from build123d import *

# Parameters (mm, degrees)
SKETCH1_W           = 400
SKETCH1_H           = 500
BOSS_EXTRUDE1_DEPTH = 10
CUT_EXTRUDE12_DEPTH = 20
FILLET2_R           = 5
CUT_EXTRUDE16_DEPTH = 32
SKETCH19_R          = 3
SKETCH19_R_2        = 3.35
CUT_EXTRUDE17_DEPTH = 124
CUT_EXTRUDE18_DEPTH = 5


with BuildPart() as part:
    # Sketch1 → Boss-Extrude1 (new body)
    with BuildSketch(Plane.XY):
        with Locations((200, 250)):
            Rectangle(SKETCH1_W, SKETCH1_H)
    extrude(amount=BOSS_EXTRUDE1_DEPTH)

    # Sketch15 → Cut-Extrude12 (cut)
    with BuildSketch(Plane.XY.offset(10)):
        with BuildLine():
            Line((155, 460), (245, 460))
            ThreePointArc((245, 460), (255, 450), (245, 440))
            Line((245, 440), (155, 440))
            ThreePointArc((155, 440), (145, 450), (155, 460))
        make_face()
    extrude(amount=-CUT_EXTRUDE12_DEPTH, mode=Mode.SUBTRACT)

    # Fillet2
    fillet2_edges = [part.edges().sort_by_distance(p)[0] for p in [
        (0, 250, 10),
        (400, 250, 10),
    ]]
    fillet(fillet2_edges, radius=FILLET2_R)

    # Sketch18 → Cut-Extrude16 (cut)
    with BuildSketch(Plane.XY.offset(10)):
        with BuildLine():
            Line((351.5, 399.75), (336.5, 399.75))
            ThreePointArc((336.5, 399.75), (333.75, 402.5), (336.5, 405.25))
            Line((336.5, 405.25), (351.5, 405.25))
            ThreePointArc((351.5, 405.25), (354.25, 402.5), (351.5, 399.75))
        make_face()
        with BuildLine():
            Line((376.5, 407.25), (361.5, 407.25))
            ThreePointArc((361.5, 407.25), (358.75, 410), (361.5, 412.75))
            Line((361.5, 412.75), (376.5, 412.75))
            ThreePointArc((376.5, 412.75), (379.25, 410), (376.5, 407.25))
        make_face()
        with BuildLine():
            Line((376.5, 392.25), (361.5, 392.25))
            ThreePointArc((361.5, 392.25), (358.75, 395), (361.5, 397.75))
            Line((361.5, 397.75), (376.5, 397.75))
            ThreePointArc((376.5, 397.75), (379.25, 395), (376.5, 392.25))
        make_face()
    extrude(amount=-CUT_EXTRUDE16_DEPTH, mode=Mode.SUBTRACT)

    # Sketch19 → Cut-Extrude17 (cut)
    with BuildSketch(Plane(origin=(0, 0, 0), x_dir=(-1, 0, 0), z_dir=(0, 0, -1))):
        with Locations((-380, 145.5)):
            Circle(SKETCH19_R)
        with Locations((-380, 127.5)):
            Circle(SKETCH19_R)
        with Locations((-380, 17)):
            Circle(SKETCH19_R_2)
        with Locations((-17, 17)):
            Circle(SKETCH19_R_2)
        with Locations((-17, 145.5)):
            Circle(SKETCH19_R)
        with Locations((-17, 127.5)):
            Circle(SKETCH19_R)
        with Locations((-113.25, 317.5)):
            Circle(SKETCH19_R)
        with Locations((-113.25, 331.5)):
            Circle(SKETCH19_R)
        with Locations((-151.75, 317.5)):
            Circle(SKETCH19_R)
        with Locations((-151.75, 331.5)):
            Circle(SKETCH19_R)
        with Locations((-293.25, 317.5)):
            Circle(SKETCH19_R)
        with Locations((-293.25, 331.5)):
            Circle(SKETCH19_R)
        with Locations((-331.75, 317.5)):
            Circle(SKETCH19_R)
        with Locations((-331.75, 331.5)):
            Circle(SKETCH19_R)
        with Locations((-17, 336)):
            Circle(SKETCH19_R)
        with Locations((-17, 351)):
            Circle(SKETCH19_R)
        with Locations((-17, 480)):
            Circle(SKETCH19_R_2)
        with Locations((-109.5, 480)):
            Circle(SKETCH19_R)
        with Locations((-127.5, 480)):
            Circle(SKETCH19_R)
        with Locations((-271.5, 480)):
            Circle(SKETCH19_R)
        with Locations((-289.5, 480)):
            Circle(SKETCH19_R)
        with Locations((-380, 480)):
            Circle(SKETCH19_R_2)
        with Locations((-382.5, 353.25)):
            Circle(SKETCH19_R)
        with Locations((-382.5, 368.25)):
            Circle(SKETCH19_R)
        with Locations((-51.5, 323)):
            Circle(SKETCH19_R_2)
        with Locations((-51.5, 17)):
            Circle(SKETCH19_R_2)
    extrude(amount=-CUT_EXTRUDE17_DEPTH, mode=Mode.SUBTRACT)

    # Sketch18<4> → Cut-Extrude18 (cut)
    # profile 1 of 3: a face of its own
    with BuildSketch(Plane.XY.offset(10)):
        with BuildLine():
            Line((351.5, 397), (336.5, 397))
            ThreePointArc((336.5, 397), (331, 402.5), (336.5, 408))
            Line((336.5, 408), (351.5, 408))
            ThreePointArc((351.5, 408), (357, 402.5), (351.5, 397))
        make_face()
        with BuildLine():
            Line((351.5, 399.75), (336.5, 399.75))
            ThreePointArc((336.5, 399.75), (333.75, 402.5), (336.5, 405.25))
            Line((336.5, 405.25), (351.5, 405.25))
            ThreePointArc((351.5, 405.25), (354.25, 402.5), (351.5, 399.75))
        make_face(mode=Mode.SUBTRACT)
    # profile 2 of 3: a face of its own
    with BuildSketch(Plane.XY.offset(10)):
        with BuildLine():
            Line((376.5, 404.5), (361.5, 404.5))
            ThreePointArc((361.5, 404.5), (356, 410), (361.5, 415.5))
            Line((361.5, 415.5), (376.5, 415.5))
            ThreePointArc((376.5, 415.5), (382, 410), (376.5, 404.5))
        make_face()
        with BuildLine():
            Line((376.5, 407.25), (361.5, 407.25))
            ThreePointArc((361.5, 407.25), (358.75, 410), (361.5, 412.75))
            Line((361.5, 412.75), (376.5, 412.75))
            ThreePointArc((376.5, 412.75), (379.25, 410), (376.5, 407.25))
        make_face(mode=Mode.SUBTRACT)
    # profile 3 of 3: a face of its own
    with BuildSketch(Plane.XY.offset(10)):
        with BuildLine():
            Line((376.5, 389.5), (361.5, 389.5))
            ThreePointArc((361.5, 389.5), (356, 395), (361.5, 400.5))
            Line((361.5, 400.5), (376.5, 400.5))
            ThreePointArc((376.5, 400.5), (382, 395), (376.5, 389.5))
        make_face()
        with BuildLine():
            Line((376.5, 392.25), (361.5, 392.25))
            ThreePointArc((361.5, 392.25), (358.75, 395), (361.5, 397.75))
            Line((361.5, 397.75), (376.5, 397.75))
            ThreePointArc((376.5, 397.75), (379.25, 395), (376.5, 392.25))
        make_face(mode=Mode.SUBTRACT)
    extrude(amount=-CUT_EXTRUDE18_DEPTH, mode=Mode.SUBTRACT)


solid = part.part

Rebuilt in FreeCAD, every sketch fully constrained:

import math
import FreeCAD as App
import Part
import Sketcher

V = App.Vector


def edges_at(feature, points):
    """Names of the edges that pass closest to the given points."""
    edges = feature.Shape.Edges
    near = lambda p: min(range(len(edges)), key=lambda i: edges[i].distToShape(Part.Vertex(*p))[0])
    return sorted({f"Edge{near(p) + 1}" for p in points})


def add_polygon(sketch, points):
    """Adds a closed chain of lines whose ends are joined by coincident constraints."""
    first, n = sketch.GeometryCount, len(points)
    for a, b in zip(points, points[1:] + points[:1]):
        sketch.addGeometry(Part.LineSegment(App.Vector(*a, 0), App.Vector(*b, 0)), False)
    for i in range(n):
        sketch.addConstraint(Sketcher.Constraint("Coincident", first + i, 2, first + (i + 1) % n, 1))

doc = App.newDocument("Part")
params = doc.addObject("Spreadsheet::Sheet", "Params")
for row, (alias, value) in enumerate([
    ("sketch1_width", "400 mm"),
    ("sketch1_height", "500 mm"),
    ("pad1_length", "10 mm"),
    ("sketch2_radius", "10 mm"),
    ("sketch2_width", "90 mm"),
    ("pocket1_length", "20 mm"),
    ("fillet_radius", "5 mm"),
    ("sketch3_width", "15 mm"),
    ("sketch3_radius", "2.75 mm"),
    ("pocket2_length", "32 mm"),
    ("sketch4_diameter", "6 mm"),
    ("sketch4_diameter2", "6.7 mm"),
    ("pocket3_length", "124 mm"),
    ("sketch5_radius", "5.5 mm"),
    ("sketch5_width", "15 mm"),
    ("sketch5_radius2", "2.75 mm"),
    ("pocket4_length", "5 mm"),
], start=1):
    params.set(f"A{row}", alias)
    params.set(f"B{row}", "=" + value)
    params.setAlias(f"B{row}", alias)

body = doc.addObject("PartDesign::Body", "Body")

sketch1 = doc.addObject("Sketcher::SketchObject", "Sketch")
body.addObject(sketch1)
sketch1.AttachmentSupport = (doc.XY_Plane, [""])
sketch1.MapMode = "FlatFace"
add_polygon(sketch1, [(0, 500), (0, 0), (400, 0), (400, 500)])
sketch1.addConstraint([
    Sketcher.Constraint("Vertical", 0),
    Sketcher.Constraint("Horizontal", 1),
    Sketcher.Constraint("Vertical", 2),
    Sketcher.Constraint("Horizontal", 3),
    Sketcher.Constraint("Coincident", 0, 2, -1, 1),
    Sketcher.Constraint("DistanceX", 1, 1, 1, 2, 400.0),
    Sketcher.Constraint("DistanceY", 0, 2, 0, 1, 500.0),
])
sketch1.setExpression("Constraints[9]", "Params.sketch1_width")
sketch1.setExpression("Constraints[10]", "Params.sketch1_height")
pad1 = doc.addObject("PartDesign::Pad", "Pad")
body.addObject(pad1)
pad1.Profile = sketch1
pad1.setExpression("Length", "Params.pad1_length")

sketch2 = doc.addObject("Sketcher::SketchObject", "Sketch001")
body.addObject(sketch2)
sketch2.AttachmentSupport = (doc.XY_Plane, [""])
sketch2.MapMode = "FlatFace"
sketch2.AttachmentOffset = App.Placement(V(0, 0, 10), App.Rotation())
sketch2.addGeometry([
    Part.LineSegment(V(245, 460, 0), V(155, 460, 0)),
    Part.ArcOfCircle(Part.Circle(V(155, 450, 0), V(0, 0, 1), 10), math.radians(90), math.radians(270)),
    Part.LineSegment(V(155, 440, 0), V(245, 440, 0)),
    Part.ArcOfCircle(Part.Circle(V(245, 450, 0), V(0, 0, 1), 10), math.radians(-90), math.radians(90)),
], False)
sketch2.addConstraint([
    Sketcher.Constraint("Tangent", 0, 2, 1, 1),
    Sketcher.Constraint("Tangent", 1, 2, 2, 1),
    Sketcher.Constraint("Tangent", 2, 2, 3, 1),
    Sketcher.Constraint("Tangent", 3, 2, 0, 1),
    Sketcher.Constraint("Horizontal", 0),
    Sketcher.Constraint("Horizontal", 2),
    Sketcher.Constraint("Radius", 1, 10.0),
    Sketcher.Constraint("DistanceX", 0, 2, 0, 1, 90.0),
    Sketcher.Constraint("DistanceX", -1, 1, 1, 3, 155.0),
    Sketcher.Constraint("DistanceY", -1, 1, 1, 3, 450.0),
])
sketch2.setExpression("Constraints[6]", "Params.sketch2_radius")
sketch2.setExpression("Constraints[7]", "Params.sketch2_width")
pocket1 = doc.addObject("PartDesign::Pocket", "Pocket")
body.addObject(pocket1)
pocket1.Profile = sketch2
pocket1.setExpression("Length", "Params.pocket1_length")
doc.recompute()

fillet = doc.addObject("PartDesign::Fillet", "Fillet")
body.addObject(fillet)
fillet.Base = (pocket1, edges_at(pocket1, [(0, 250, 10), (400, 250, 10)]))
fillet.setExpression("Radius", "Params.fillet_radius")

sketch3 = doc.addObject("Sketcher::SketchObject", "Sketch002")
body.addObject(sketch3)
sketch3.AttachmentSupport = (doc.XY_Plane, [""])
sketch3.MapMode = "FlatFace"
sketch3.AttachmentOffset = App.Placement(V(0, 0, 10), App.Rotation())
sketch3.addGeometry([
    Part.LineSegment(V(336.5, 399.8, 0), V(351.5, 399.8, 0)),
    Part.ArcOfCircle(Part.Circle(V(351.5, 402.5, 0), V(0, 0, 1), 2.8), math.radians(-90), math.radians(90)),
    Part.LineSegment(V(351.5, 405.2, 0), V(336.5, 405.2, 0)),
    Part.ArcOfCircle(Part.Circle(V(336.5, 402.5, 0), V(0, 0, 1), 2.8), math.radians(90), math.radians(270)),
    Part.LineSegment(V(361.5, 407.2, 0), V(376.5, 407.2, 0)),
    Part.ArcOfCircle(Part.Circle(V(376.5, 410, 0), V(0, 0, 1), 2.8), math.radians(-90), math.radians(90)),
    Part.LineSegment(V(376.5, 412.8, 0), V(361.5, 412.8, 0)),
    Part.ArcOfCircle(Part.Circle(V(361.5, 410, 0), V(0, 0, 1), 2.8), math.radians(90), math.radians(270)),
    Part.LineSegment(V(361.5, 392.2, 0), V(376.5, 392.2, 0)),
    Part.ArcOfCircle(Part.Circle(V(376.5, 395, 0), V(0, 0, 1), 2.8), math.radians(-90), math.radians(90)),
    Part.LineSegment(V(376.5, 397.8, 0), V(361.5, 397.8, 0)),
    Part.ArcOfCircle(Part.Circle(V(361.5, 395, 0), V(0, 0, 1), 2.8), math.radians(90), math.radians(270)),
], False)
sketch3.addConstraint([
    Sketcher.Constraint("Tangent", 0, 2, 1, 1),
    Sketcher.Constraint("Tangent", 1, 2, 2, 1),
    Sketcher.Constraint("Tangent", 2, 2, 3, 1),
    Sketcher.Constraint("Tangent", 3, 2, 0, 1),
    Sketcher.Constraint("Tangent", 4, 2, 5, 1),
    Sketcher.Constraint("Tangent", 5, 2, 6, 1),
    Sketcher.Constraint("Tangent", 6, 2, 7, 1),
    Sketcher.Constraint("Tangent", 7, 2, 4, 1),
    Sketcher.Constraint("Tangent", 8, 2, 9, 1),
    Sketcher.Constraint("Tangent", 9, 2, 10, 1),
    Sketcher.Constraint("Tangent", 10, 2, 11, 1),
    Sketcher.Constraint("Tangent", 11, 2, 8, 1),
    Sketcher.Constraint("Horizontal", 0),
    Sketcher.Constraint("Horizontal", 2),
    Sketcher.Constraint("Horizontal", 4),
    Sketcher.Constraint("Horizontal", 6),
    Sketcher.Constraint("Horizontal", 8),
    Sketcher.Constraint("Horizontal", 10),
    Sketcher.Constraint("Equal", 3, 5),
    Sketcher.Constraint("Equal", 7, 9),
    Sketcher.Constraint("Vertical", 5, 3, 9, 3),
    Sketcher.Constraint("Vertical", 7, 3, 11, 3),
    Sketcher.Constraint("Equal", 2, 4),
    Sketcher.Constraint("DistanceX", 0, 1, 0, 2, 15.0),
    Sketcher.Constraint("Radius", 1, 2.75),
    Sketcher.Constraint("DistanceY", -1, 1, 5, 3, 410.0),
    Sketcher.Constraint("DistanceY", -1, 1, 9, 3, 395.0),
    Sketcher.Constraint("DistanceX", 1, 3, 5, 3, 25.0),
    Sketcher.Constraint("DistanceY", 1, 2, 4, 2, 2.0),
    Sketcher.Constraint("DistanceX", -1, 1, 1, 3, 351.5),
])
sketch3.setExpression("Constraints[23]", "Params.sketch3_width")
sketch3.setExpression("Constraints[24]", "Params.sketch3_radius")
pocket2 = doc.addObject("PartDesign::Pocket", "Pocket001")
body.addObject(pocket2)
pocket2.Profile = sketch3
pocket2.setExpression("Length", "Params.pocket2_length")

sketch4 = doc.addObject("Sketcher::SketchObject", "Sketch003")
body.addObject(sketch4)
sketch4.AttachmentSupport = (doc.XY_Plane, [""])
sketch4.MapMode = "FlatFace"
sketch4.addGeometry([
    Part.Circle(V(380, 145.5, 0), V(0, 0, 1), 3),
    Part.Circle(V(380, 127.5, 0), V(0, 0, 1), 3),
    Part.Circle(V(380, 17, 0), V(0, 0, 1), 3.4),
    Part.Circle(V(17, 17, 0), V(0, 0, 1), 3.4),
    Part.Circle(V(17, 145.5, 0), V(0, 0, 1), 3),
    Part.Circle(V(17, 127.5, 0), V(0, 0, 1), 3),
    Part.Circle(V(113.2, 317.5, 0), V(0, 0, 1), 3),
    Part.Circle(V(113.2, 331.5, 0), V(0, 0, 1), 3),
    Part.Circle(V(151.8, 317.5, 0), V(0, 0, 1), 3),
    Part.Circle(V(151.8, 331.5, 0), V(0, 0, 1), 3),
    Part.Circle(V(293.2, 317.5, 0), V(0, 0, 1), 3),
    Part.Circle(V(293.2, 331.5, 0), V(0, 0, 1), 3),
    Part.Circle(V(331.8, 317.5, 0), V(0, 0, 1), 3),
    Part.Circle(V(331.8, 331.5, 0), V(0, 0, 1), 3),
    Part.Circle(V(17, 336, 0), V(0, 0, 1), 3),
    Part.Circle(V(17, 351, 0), V(0, 0, 1), 3),
    Part.Circle(V(17, 480, 0), V(0, 0, 1), 3.4),
    Part.Circle(V(109.5, 480, 0), V(0, 0, 1), 3),
    Part.Circle(V(127.5, 480, 0), V(0, 0, 1), 3),
    Part.Circle(V(271.5, 480, 0), V(0, 0, 1), 3),
    Part.Circle(V(289.5, 480, 0), V(0, 0, 1), 3),
    Part.Circle(V(380, 480, 0), V(0, 0, 1), 3.4),
    Part.Circle(V(382.5, 353.2, 0), V(0, 0, 1), 3),
    Part.Circle(V(382.5, 368.2, 0), V(0, 0, 1), 3),
    Part.Circle(V(51.5, 323, 0), V(0, 0, 1), 3.4),
    Part.Circle(V(51.5, 17, 0), V(0, 0, 1), 3.4),
], False)
sketch4.addConstraint([
    Sketcher.Constraint("Equal", 0, 1),
    Sketcher.Constraint("Equal", 2, 3),
    Sketcher.Constraint("Equal", 1, 4),
    Sketcher.Constraint("Equal", 4, 5),
    Sketcher.Constraint("Equal", 5, 6),
    Sketcher.Constraint("Equal", 6, 7),
    Sketcher.Constraint("Equal", 7, 8),
    Sketcher.Constraint("Equal", 8, 9),
    Sketcher.Constraint("Equal", 9, 10),
    Sketcher.Constraint("Equal", 10, 11),
    Sketcher.Constraint("Equal", 11, 12),
    Sketcher.Constraint("Equal", 12, 13),
    Sketcher.Constraint("Equal", 13, 14),
    Sketcher.Constraint("Equal", 14, 15),
    Sketcher.Constraint("Equal", 3, 16),
    Sketcher.Constraint("Equal", 15, 17),
    Sketcher.Constraint("Equal", 17, 18),
    Sketcher.Constraint("Equal", 18, 19),
    Sketcher.Constraint("Equal", 19, 20),
    Sketcher.Constraint("Equal", 16, 21),
    Sketcher.Constraint("Equal", 20, 22),
    Sketcher.Constraint("Equal", 22, 23),
    Sketcher.Constraint("Equal", 21, 24),
    Sketcher.Constraint("Equal", 24, 25),
    Sketcher.Constraint("Horizontal", 2, 3, 3, 3),
    Sketcher.Constraint("Horizontal", 0, 3, 4, 3),
    Sketcher.Constraint("Horizontal", 1, 3, 5, 3),
    Sketcher.Constraint("Horizontal", 6, 3, 8, 3),
    Sketcher.Constraint("Horizontal", 7, 3, 9, 3),
    Sketcher.Constraint("Horizontal", 8, 3, 10, 3),
    Sketcher.Constraint("Horizontal", 9, 3, 11, 3),
    Sketcher.Constraint("Horizontal", 10, 3, 12, 3),
    Sketcher.Constraint("Horizontal", 11, 3, 13, 3),
    Sketcher.Constraint("Horizontal", 16, 3, 17, 3),
    Sketcher.Constraint("Horizontal", 17, 3, 18, 3),
    Sketcher.Constraint("Horizontal", 18, 3, 19, 3),
    Sketcher.Constraint("Horizontal", 19, 3, 20, 3),
    Sketcher.Constraint("Horizontal", 20, 3, 21, 3),
    Sketcher.Constraint("Horizontal", 3, 3, 25, 3),
    Sketcher.Constraint("Vertical", 0, 3, 1, 3),
    Sketcher.Constraint("Vertical", 1, 3, 2, 3),
    Sketcher.Constraint("Vertical", 3, 3, 4, 3),
    Sketcher.Constraint("Vertical", 4, 3, 5, 3),
    Sketcher.Constraint("Vertical", 6, 3, 7, 3),
    Sketcher.Constraint("Vertical", 8, 3, 9, 3),
    Sketcher.Constraint("Vertical", 10, 3, 11, 3),
    Sketcher.Constraint("Vertical", 12, 3, 13, 3),
    Sketcher.Constraint("Vertical", 5, 3, 14, 3),
    Sketcher.Constraint("Vertical", 14, 3, 15, 3),
    Sketcher.Constraint("Vertical", 15, 3, 16, 3),
    Sketcher.Constraint("Vertical", 2, 3, 21, 3),
    Sketcher.Constraint("Vertical", 22, 3, 23, 3),
    Sketcher.Constraint("Vertical", 24, 3, 25, 3),
    Sketcher.Constraint("Diameter", 0, 6.0),
    Sketcher.Constraint("Diameter", 2, 6.7),
    Sketcher.Constraint("DistanceX", -1, 1, 0, 3, 380.0),
    Sketcher.Constraint("DistanceY", -1, 1, 2, 3, 17.0),
    Sketcher.Constraint("DistanceX", -1, 1, 3, 3, 17.0),
    Sketcher.Constraint("DistanceY", -1, 1, 14, 3, 336.0),
    Sketcher.Constraint("DistanceY", -1, 1, 15, 3, 351.0),
    Sketcher.Constraint("DistanceY", -1, 1, 16, 3, 480.0),
    Sketcher.Constraint("DistanceY", -1, 1, 24, 3, 323.0),
    Sketcher.Constraint("DistanceY", 1, 3, 0, 3, 18.0),
    Sketcher.Constraint("DistanceY", 4, 3, 6, 3, 172.0),
    Sketcher.Constraint("DistanceY", 6, 3, 7, 3, 14.0),
    Sketcher.Constraint("DistanceX", 6, 3, 10, 3, 180.0),
    Sketcher.Constraint("DistanceX", 8, 3, 12, 3, 180.0),
    Sketcher.Constraint("DistanceX", 17, 3, 18, 3, 18.0),
    Sketcher.Constraint("DistanceX", 18, 3, 19, 3, 144.0),
    Sketcher.Constraint("DistanceX", 19, 3, 20, 3, 18.0),
    Sketcher.Constraint("DistanceY", 22, 3, 23, 3, 15.0),
    Sketcher.Constraint("DistanceY", -1, 1, 0, 3, 145.5),
    Sketcher.Constraint("DistanceX", -1, 1, 17, 3, 109.5),
    Sketcher.Constraint("DistanceX", -1, 1, 22, 3, 382.5),
    Sketcher.Constraint("DistanceX", -1, 1, 24, 3, 51.5),
    Sketcher.Constraint("DistanceX", 6, 3, 8, 3, 38.5),
    Sketcher.Constraint("DistanceX", -1, 1, 6, 3, 113.25),
    Sketcher.Constraint("DistanceY", -1, 1, 22, 3, 353.25),
])
sketch4.setExpression("Constraints[53]", "Params.sketch4_diameter")
sketch4.setExpression("Constraints[54]", "Params.sketch4_diameter2")
pocket3 = doc.addObject("PartDesign::Pocket", "Pocket002")
body.addObject(pocket3)
pocket3.Profile = sketch4
pocket3.setExpression("Length", "Params.pocket3_length")
pocket3.Reversed = True

sketch5 = doc.addObject("Sketcher::SketchObject", "Sketch004")
body.addObject(sketch5)
sketch5.AttachmentSupport = (doc.XY_Plane, [""])
sketch5.MapMode = "FlatFace"
sketch5.AttachmentOffset = App.Placement(V(0, 0, 10), App.Rotation())
sketch5.addGeometry([
    Part.LineSegment(V(336.5, 397, 0), V(351.5, 397, 0)),
    Part.ArcOfCircle(Part.Circle(V(351.5, 402.5, 0), V(0, 0, 1), 5.5), math.radians(-90), math.radians(90)),
    Part.LineSegment(V(351.5, 408, 0), V(336.5, 408, 0)),
    Part.ArcOfCircle(Part.Circle(V(336.5, 402.5, 0), V(0, 0, 1), 5.5), math.radians(90), math.radians(270)),
    Part.LineSegment(V(351.5, 399.8, 0), V(336.5, 399.8, 0)),
    Part.ArcOfCircle(Part.Circle(V(336.5, 402.5, 0), V(0, 0, 1), 2.8), math.radians(90), math.radians(270)),
    Part.LineSegment(V(336.5, 405.2, 0), V(351.5, 405.2, 0)),
    Part.ArcOfCircle(Part.Circle(V(351.5, 402.5, 0), V(0, 0, 1), 2.8), math.radians(-90), math.radians(90)),
    Part.LineSegment(V(361.5, 404.5, 0), V(376.5, 404.5, 0)),
    Part.ArcOfCircle(Part.Circle(V(376.5, 410, 0), V(0, 0, 1), 5.5), math.radians(-90), math.radians(90)),
    Part.LineSegment(V(376.5, 415.5, 0), V(361.5, 415.5, 0)),
    Part.ArcOfCircle(Part.Circle(V(361.5, 410, 0), V(0, 0, 1), 5.5), math.radians(90), math.radians(270)),
    Part.LineSegment(V(376.5, 407.2, 0), V(361.5, 407.2, 0)),
    Part.ArcOfCircle(Part.Circle(V(361.5, 410, 0), V(0, 0, 1), 2.8), math.radians(90), math.radians(270)),
    Part.LineSegment(V(361.5, 412.8, 0), V(376.5, 412.8, 0)),
    Part.ArcOfCircle(Part.Circle(V(376.5, 410, 0), V(0, 0, 1), 2.8), math.radians(-90), math.radians(90)),
    Part.LineSegment(V(361.5, 389.5, 0), V(376.5, 389.5, 0)),
    Part.ArcOfCircle(Part.Circle(V(376.5, 395, 0), V(0, 0, 1), 5.5), math.radians(-90), math.radians(90)),
    Part.LineSegment(V(376.5, 400.5, 0), V(361.5, 400.5, 0)),
    Part.ArcOfCircle(Part.Circle(V(361.5, 395, 0), V(0, 0, 1), 5.5), math.radians(90), math.radians(270)),
    Part.LineSegment(V(376.5, 392.2, 0), V(361.5, 392.2, 0)),
    Part.ArcOfCircle(Part.Circle(V(361.5, 395, 0), V(0, 0, 1), 2.8), math.radians(90), math.radians(270)),
    Part.LineSegment(V(361.5, 397.8, 0), V(376.5, 397.8, 0)),
    Part.ArcOfCircle(Part.Circle(V(376.5, 395, 0), V(0, 0, 1), 2.8), math.radians(-90), math.radians(90)),
], False)
sketch5.addConstraint([
    Sketcher.Constraint("Tangent", 0, 2, 1, 1),
    Sketcher.Constraint("Tangent", 1, 2, 2, 1),
    Sketcher.Constraint("Tangent", 2, 2, 3, 1),
    Sketcher.Constraint("Tangent", 3, 2, 0, 1),
    Sketcher.Constraint("Tangent", 4, 2, 5, 2),
    Sketcher.Constraint("Tangent", 5, 1, 6, 1),
    Sketcher.Constraint("Tangent", 6, 2, 7, 2),
    Sketcher.Constraint("Tangent", 7, 1, 4, 1),
    Sketcher.Constraint("Tangent", 8, 2, 9, 1),
    Sketcher.Constraint("Tangent", 9, 2, 10, 1),
    Sketcher.Constraint("Tangent", 10, 2, 11, 1),
    Sketcher.Constraint("Tangent", 11, 2, 8, 1),
    Sketcher.Constraint("Tangent", 12, 2, 13, 2),
    Sketcher.Constraint("Tangent", 13, 1, 14, 1),
    Sketcher.Constraint("Tangent", 14, 2, 15, 2),
    Sketcher.Constraint("Tangent", 15, 1, 12, 1),
    Sketcher.Constraint("Tangent", 16, 2, 17, 1),
    Sketcher.Constraint("Tangent", 17, 2, 18, 1),
    Sketcher.Constraint("Tangent", 18, 2, 19, 1),
    Sketcher.Constraint("Tangent", 19, 2, 16, 1),
    Sketcher.Constraint("Tangent", 20, 2, 21, 2),
    Sketcher.Constraint("Tangent", 21, 1, 22, 1),
    Sketcher.Constraint("Tangent", 22, 2, 23, 2),
    Sketcher.Constraint("Tangent", 23, 1, 20, 1),
    Sketcher.Constraint("Horizontal", 0),
    Sketcher.Constraint("Horizontal", 2),
    Sketcher.Constraint("Horizontal", 4),
    Sketcher.Constraint("Horizontal", 6),
    Sketcher.Constraint("Horizontal", 8),
    Sketcher.Constraint("Horizontal", 10),
    Sketcher.Constraint("Horizontal", 12),
    Sketcher.Constraint("Horizontal", 14),
    Sketcher.Constraint("Horizontal", 16),
    Sketcher.Constraint("Horizontal", 18),
    Sketcher.Constraint("Horizontal", 20),
    Sketcher.Constraint("Horizontal", 22),
    Sketcher.Constraint("Coincident", 5, 3, 3, 3),
    Sketcher.Constraint("Coincident", 13, 3, 11, 3),
    Sketcher.Constraint("Coincident", 21, 3, 19, 3),
    Sketcher.Constraint("Equal", 3, 9),
    Sketcher.Constraint("Equal", 7, 13),
    Sketcher.Constraint("Equal", 11, 17),
    Sketcher.Constraint("Equal", 15, 21),
    Sketcher.Constraint("Vertical", 15, 3, 17, 3),
    Sketcher.Constraint("Vertical", 13, 3, 19, 3),
    Sketcher.Constraint("Vertical", 15, 3, 23, 3),
    Sketcher.Constraint("Vertical", 7, 3, 0, 2),
    Sketcher.Constraint("Vertical", 23, 3, 8, 2),
    Sketcher.Constraint("Equal", 6, 8),
    Sketcher.Constraint("Radius", 1, 5.5),
    Sketcher.Constraint("DistanceX", 0, 1, 0, 2, 15.0),
    Sketcher.Constraint("Radius", 5, 2.75),
    Sketcher.Constraint("DistanceY", -1, 1, 9, 3, 410.0),
    Sketcher.Constraint("DistanceY", -1, 1, 17, 3, 395.0),
    Sketcher.Constraint("DistanceY", -1, 1, 0, 2, 397.0),
    Sketcher.Constraint("DistanceX", 1, 3, 9, 3, 25.0),
    Sketcher.Constraint("DistanceX", -1, 1, 1, 3, 351.5),
])
sketch5.setExpression("Constraints[49]", "Params.sketch5_radius")
sketch5.setExpression("Constraints[50]", "Params.sketch5_width")
sketch5.setExpression("Constraints[51]", "Params.sketch5_radius2")
pocket4 = doc.addObject("PartDesign::Pocket", "Pocket003")
body.addObject(pocket4)
pocket4.Profile = sketch5
pocket4.setExpression("Length", "Params.pocket4_length")

doc.recompute()
